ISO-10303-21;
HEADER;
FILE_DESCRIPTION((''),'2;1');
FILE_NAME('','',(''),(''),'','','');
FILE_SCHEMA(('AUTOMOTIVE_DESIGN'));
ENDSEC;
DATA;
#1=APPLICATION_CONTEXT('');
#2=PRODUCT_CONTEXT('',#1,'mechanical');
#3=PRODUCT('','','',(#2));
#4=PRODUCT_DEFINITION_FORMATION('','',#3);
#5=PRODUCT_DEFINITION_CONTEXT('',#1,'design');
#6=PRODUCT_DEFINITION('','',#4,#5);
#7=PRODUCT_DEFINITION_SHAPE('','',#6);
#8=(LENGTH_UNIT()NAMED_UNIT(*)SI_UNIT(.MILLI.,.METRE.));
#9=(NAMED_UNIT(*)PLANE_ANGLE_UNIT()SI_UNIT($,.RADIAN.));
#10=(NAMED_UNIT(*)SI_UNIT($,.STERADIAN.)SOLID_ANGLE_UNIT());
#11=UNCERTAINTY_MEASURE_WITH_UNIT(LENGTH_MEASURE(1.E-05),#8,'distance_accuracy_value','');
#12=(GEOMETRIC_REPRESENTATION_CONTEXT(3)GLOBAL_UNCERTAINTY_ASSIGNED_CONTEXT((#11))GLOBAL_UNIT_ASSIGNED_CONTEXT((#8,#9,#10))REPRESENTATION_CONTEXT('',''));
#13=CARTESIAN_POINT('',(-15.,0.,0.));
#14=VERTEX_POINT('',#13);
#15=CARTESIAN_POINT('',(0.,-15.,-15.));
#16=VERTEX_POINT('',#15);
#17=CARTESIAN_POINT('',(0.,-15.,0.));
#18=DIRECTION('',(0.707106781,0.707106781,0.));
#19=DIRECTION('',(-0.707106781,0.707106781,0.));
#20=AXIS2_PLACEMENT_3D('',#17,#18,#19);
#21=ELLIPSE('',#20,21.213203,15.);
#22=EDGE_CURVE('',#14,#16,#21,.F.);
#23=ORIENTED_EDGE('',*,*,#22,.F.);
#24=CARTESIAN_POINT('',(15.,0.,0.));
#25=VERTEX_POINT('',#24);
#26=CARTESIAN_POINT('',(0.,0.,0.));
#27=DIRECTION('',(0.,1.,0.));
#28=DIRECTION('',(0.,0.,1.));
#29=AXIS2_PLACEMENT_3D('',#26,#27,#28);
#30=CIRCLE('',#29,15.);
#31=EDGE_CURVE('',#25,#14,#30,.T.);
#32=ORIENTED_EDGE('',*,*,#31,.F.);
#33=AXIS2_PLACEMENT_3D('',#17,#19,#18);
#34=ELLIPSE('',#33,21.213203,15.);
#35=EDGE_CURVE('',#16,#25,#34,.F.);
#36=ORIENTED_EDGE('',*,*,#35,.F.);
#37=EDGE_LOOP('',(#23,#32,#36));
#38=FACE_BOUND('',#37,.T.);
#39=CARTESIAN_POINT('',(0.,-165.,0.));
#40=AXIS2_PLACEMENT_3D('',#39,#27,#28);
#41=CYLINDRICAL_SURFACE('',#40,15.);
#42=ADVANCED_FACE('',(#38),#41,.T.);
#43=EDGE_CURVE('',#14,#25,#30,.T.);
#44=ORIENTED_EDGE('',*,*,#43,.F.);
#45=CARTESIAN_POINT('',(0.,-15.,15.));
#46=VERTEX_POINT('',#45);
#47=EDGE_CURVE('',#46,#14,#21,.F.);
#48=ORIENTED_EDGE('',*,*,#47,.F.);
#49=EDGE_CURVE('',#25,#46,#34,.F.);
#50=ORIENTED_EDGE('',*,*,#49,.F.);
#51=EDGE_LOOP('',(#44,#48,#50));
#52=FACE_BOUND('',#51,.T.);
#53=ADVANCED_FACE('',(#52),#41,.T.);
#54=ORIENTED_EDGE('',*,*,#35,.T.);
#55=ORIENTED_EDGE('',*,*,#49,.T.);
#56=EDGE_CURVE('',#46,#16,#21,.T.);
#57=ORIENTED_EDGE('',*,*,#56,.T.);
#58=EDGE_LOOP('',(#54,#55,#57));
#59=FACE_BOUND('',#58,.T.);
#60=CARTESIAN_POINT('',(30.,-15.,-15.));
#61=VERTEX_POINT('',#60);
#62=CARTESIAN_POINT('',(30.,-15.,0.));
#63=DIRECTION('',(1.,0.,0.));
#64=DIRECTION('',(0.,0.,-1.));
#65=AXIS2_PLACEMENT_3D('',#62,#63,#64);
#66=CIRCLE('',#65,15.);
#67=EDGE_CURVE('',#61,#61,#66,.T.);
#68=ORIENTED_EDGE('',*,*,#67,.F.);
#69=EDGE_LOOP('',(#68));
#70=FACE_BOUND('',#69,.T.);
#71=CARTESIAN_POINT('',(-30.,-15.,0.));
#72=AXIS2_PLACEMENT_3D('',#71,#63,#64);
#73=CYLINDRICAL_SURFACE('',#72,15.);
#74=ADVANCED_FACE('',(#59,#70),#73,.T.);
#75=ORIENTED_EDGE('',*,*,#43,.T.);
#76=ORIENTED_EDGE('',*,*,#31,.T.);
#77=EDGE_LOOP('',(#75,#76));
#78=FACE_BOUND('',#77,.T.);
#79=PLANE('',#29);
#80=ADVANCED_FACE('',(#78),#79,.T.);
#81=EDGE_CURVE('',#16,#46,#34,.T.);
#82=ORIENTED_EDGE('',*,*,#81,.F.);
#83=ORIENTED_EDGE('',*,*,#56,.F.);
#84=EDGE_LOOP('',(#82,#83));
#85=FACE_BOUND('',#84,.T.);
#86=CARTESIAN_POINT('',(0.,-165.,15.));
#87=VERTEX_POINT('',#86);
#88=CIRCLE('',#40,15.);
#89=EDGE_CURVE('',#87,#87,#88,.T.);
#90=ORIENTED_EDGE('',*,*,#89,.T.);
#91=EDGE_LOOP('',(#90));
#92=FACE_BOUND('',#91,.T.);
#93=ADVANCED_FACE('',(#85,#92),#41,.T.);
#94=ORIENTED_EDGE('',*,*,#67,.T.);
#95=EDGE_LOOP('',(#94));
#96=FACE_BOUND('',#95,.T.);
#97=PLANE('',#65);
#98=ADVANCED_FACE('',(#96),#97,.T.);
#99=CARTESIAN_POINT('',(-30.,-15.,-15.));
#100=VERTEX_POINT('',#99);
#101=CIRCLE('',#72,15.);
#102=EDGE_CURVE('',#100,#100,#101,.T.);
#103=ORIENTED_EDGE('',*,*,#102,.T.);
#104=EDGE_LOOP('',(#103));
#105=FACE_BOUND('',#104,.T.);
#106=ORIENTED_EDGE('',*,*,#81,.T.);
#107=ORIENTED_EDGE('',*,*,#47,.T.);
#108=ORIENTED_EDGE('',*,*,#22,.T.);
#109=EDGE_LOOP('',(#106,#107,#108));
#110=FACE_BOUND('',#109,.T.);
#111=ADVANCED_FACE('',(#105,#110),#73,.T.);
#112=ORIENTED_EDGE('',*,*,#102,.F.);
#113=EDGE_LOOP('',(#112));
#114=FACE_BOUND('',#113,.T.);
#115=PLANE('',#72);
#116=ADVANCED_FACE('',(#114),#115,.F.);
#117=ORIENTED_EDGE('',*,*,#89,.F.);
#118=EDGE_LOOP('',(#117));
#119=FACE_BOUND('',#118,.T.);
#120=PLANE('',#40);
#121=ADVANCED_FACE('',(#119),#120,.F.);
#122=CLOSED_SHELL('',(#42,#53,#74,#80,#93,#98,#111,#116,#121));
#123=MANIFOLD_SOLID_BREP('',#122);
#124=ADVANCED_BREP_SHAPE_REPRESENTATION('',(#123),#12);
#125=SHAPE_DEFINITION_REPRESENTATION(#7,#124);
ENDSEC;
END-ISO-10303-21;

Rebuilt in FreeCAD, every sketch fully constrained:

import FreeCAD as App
import Part
import Sketcher
from FreeCAD import Vector

doc = App.newDocument("Part")
body = doc.addObject("PartDesign::Body", "Body")

sketch1 = body.newObject("Sketcher::SketchObject", "Sketch")
sketch1.AttachmentSupport = (doc.getObject("XZ_Plane"), [""])
sketch1.MapMode = "FlatFace"
sketch1.addGeometry(Part.Circle(Vector(0, 0, 0), Vector(0, 0, 1), 15), False)
sketch1.addConstraint([
    Sketcher.Constraint("Coincident", 0, 3, -1, 1),
    Sketcher.Constraint("Diameter", 0, 30.0),
])
pad1 = body.newObject("PartDesign::Pad", "Pad")
pad1.Profile = sketch1
pad1.Length = 165

sketch2 = body.newObject("Sketcher::SketchObject", "Sketch001")
sketch2.AttachmentSupport = (doc.getObject("YZ_Plane"), [""])
sketch2.MapMode = "FlatFace"
sketch2.addGeometry(Part.Circle(Vector(-15, 0, 0), Vector(0, 0, 1), 15), False)
sketch2.addConstraint([
    Sketcher.Constraint("PointOnObject", 0, 3, -1),
    Sketcher.Constraint("Diameter", 0, 30.0),
    Sketcher.Constraint("DistanceX", 0, 3, -1, 1, 15.0),
])
pad2 = body.newObject("PartDesign::Pad", "Pad001")
pad2.Profile = sketch2
pad2.Type = "TwoLengths"
pad2.Length = 30
pad2.Length2 = 30

doc.recompute()
